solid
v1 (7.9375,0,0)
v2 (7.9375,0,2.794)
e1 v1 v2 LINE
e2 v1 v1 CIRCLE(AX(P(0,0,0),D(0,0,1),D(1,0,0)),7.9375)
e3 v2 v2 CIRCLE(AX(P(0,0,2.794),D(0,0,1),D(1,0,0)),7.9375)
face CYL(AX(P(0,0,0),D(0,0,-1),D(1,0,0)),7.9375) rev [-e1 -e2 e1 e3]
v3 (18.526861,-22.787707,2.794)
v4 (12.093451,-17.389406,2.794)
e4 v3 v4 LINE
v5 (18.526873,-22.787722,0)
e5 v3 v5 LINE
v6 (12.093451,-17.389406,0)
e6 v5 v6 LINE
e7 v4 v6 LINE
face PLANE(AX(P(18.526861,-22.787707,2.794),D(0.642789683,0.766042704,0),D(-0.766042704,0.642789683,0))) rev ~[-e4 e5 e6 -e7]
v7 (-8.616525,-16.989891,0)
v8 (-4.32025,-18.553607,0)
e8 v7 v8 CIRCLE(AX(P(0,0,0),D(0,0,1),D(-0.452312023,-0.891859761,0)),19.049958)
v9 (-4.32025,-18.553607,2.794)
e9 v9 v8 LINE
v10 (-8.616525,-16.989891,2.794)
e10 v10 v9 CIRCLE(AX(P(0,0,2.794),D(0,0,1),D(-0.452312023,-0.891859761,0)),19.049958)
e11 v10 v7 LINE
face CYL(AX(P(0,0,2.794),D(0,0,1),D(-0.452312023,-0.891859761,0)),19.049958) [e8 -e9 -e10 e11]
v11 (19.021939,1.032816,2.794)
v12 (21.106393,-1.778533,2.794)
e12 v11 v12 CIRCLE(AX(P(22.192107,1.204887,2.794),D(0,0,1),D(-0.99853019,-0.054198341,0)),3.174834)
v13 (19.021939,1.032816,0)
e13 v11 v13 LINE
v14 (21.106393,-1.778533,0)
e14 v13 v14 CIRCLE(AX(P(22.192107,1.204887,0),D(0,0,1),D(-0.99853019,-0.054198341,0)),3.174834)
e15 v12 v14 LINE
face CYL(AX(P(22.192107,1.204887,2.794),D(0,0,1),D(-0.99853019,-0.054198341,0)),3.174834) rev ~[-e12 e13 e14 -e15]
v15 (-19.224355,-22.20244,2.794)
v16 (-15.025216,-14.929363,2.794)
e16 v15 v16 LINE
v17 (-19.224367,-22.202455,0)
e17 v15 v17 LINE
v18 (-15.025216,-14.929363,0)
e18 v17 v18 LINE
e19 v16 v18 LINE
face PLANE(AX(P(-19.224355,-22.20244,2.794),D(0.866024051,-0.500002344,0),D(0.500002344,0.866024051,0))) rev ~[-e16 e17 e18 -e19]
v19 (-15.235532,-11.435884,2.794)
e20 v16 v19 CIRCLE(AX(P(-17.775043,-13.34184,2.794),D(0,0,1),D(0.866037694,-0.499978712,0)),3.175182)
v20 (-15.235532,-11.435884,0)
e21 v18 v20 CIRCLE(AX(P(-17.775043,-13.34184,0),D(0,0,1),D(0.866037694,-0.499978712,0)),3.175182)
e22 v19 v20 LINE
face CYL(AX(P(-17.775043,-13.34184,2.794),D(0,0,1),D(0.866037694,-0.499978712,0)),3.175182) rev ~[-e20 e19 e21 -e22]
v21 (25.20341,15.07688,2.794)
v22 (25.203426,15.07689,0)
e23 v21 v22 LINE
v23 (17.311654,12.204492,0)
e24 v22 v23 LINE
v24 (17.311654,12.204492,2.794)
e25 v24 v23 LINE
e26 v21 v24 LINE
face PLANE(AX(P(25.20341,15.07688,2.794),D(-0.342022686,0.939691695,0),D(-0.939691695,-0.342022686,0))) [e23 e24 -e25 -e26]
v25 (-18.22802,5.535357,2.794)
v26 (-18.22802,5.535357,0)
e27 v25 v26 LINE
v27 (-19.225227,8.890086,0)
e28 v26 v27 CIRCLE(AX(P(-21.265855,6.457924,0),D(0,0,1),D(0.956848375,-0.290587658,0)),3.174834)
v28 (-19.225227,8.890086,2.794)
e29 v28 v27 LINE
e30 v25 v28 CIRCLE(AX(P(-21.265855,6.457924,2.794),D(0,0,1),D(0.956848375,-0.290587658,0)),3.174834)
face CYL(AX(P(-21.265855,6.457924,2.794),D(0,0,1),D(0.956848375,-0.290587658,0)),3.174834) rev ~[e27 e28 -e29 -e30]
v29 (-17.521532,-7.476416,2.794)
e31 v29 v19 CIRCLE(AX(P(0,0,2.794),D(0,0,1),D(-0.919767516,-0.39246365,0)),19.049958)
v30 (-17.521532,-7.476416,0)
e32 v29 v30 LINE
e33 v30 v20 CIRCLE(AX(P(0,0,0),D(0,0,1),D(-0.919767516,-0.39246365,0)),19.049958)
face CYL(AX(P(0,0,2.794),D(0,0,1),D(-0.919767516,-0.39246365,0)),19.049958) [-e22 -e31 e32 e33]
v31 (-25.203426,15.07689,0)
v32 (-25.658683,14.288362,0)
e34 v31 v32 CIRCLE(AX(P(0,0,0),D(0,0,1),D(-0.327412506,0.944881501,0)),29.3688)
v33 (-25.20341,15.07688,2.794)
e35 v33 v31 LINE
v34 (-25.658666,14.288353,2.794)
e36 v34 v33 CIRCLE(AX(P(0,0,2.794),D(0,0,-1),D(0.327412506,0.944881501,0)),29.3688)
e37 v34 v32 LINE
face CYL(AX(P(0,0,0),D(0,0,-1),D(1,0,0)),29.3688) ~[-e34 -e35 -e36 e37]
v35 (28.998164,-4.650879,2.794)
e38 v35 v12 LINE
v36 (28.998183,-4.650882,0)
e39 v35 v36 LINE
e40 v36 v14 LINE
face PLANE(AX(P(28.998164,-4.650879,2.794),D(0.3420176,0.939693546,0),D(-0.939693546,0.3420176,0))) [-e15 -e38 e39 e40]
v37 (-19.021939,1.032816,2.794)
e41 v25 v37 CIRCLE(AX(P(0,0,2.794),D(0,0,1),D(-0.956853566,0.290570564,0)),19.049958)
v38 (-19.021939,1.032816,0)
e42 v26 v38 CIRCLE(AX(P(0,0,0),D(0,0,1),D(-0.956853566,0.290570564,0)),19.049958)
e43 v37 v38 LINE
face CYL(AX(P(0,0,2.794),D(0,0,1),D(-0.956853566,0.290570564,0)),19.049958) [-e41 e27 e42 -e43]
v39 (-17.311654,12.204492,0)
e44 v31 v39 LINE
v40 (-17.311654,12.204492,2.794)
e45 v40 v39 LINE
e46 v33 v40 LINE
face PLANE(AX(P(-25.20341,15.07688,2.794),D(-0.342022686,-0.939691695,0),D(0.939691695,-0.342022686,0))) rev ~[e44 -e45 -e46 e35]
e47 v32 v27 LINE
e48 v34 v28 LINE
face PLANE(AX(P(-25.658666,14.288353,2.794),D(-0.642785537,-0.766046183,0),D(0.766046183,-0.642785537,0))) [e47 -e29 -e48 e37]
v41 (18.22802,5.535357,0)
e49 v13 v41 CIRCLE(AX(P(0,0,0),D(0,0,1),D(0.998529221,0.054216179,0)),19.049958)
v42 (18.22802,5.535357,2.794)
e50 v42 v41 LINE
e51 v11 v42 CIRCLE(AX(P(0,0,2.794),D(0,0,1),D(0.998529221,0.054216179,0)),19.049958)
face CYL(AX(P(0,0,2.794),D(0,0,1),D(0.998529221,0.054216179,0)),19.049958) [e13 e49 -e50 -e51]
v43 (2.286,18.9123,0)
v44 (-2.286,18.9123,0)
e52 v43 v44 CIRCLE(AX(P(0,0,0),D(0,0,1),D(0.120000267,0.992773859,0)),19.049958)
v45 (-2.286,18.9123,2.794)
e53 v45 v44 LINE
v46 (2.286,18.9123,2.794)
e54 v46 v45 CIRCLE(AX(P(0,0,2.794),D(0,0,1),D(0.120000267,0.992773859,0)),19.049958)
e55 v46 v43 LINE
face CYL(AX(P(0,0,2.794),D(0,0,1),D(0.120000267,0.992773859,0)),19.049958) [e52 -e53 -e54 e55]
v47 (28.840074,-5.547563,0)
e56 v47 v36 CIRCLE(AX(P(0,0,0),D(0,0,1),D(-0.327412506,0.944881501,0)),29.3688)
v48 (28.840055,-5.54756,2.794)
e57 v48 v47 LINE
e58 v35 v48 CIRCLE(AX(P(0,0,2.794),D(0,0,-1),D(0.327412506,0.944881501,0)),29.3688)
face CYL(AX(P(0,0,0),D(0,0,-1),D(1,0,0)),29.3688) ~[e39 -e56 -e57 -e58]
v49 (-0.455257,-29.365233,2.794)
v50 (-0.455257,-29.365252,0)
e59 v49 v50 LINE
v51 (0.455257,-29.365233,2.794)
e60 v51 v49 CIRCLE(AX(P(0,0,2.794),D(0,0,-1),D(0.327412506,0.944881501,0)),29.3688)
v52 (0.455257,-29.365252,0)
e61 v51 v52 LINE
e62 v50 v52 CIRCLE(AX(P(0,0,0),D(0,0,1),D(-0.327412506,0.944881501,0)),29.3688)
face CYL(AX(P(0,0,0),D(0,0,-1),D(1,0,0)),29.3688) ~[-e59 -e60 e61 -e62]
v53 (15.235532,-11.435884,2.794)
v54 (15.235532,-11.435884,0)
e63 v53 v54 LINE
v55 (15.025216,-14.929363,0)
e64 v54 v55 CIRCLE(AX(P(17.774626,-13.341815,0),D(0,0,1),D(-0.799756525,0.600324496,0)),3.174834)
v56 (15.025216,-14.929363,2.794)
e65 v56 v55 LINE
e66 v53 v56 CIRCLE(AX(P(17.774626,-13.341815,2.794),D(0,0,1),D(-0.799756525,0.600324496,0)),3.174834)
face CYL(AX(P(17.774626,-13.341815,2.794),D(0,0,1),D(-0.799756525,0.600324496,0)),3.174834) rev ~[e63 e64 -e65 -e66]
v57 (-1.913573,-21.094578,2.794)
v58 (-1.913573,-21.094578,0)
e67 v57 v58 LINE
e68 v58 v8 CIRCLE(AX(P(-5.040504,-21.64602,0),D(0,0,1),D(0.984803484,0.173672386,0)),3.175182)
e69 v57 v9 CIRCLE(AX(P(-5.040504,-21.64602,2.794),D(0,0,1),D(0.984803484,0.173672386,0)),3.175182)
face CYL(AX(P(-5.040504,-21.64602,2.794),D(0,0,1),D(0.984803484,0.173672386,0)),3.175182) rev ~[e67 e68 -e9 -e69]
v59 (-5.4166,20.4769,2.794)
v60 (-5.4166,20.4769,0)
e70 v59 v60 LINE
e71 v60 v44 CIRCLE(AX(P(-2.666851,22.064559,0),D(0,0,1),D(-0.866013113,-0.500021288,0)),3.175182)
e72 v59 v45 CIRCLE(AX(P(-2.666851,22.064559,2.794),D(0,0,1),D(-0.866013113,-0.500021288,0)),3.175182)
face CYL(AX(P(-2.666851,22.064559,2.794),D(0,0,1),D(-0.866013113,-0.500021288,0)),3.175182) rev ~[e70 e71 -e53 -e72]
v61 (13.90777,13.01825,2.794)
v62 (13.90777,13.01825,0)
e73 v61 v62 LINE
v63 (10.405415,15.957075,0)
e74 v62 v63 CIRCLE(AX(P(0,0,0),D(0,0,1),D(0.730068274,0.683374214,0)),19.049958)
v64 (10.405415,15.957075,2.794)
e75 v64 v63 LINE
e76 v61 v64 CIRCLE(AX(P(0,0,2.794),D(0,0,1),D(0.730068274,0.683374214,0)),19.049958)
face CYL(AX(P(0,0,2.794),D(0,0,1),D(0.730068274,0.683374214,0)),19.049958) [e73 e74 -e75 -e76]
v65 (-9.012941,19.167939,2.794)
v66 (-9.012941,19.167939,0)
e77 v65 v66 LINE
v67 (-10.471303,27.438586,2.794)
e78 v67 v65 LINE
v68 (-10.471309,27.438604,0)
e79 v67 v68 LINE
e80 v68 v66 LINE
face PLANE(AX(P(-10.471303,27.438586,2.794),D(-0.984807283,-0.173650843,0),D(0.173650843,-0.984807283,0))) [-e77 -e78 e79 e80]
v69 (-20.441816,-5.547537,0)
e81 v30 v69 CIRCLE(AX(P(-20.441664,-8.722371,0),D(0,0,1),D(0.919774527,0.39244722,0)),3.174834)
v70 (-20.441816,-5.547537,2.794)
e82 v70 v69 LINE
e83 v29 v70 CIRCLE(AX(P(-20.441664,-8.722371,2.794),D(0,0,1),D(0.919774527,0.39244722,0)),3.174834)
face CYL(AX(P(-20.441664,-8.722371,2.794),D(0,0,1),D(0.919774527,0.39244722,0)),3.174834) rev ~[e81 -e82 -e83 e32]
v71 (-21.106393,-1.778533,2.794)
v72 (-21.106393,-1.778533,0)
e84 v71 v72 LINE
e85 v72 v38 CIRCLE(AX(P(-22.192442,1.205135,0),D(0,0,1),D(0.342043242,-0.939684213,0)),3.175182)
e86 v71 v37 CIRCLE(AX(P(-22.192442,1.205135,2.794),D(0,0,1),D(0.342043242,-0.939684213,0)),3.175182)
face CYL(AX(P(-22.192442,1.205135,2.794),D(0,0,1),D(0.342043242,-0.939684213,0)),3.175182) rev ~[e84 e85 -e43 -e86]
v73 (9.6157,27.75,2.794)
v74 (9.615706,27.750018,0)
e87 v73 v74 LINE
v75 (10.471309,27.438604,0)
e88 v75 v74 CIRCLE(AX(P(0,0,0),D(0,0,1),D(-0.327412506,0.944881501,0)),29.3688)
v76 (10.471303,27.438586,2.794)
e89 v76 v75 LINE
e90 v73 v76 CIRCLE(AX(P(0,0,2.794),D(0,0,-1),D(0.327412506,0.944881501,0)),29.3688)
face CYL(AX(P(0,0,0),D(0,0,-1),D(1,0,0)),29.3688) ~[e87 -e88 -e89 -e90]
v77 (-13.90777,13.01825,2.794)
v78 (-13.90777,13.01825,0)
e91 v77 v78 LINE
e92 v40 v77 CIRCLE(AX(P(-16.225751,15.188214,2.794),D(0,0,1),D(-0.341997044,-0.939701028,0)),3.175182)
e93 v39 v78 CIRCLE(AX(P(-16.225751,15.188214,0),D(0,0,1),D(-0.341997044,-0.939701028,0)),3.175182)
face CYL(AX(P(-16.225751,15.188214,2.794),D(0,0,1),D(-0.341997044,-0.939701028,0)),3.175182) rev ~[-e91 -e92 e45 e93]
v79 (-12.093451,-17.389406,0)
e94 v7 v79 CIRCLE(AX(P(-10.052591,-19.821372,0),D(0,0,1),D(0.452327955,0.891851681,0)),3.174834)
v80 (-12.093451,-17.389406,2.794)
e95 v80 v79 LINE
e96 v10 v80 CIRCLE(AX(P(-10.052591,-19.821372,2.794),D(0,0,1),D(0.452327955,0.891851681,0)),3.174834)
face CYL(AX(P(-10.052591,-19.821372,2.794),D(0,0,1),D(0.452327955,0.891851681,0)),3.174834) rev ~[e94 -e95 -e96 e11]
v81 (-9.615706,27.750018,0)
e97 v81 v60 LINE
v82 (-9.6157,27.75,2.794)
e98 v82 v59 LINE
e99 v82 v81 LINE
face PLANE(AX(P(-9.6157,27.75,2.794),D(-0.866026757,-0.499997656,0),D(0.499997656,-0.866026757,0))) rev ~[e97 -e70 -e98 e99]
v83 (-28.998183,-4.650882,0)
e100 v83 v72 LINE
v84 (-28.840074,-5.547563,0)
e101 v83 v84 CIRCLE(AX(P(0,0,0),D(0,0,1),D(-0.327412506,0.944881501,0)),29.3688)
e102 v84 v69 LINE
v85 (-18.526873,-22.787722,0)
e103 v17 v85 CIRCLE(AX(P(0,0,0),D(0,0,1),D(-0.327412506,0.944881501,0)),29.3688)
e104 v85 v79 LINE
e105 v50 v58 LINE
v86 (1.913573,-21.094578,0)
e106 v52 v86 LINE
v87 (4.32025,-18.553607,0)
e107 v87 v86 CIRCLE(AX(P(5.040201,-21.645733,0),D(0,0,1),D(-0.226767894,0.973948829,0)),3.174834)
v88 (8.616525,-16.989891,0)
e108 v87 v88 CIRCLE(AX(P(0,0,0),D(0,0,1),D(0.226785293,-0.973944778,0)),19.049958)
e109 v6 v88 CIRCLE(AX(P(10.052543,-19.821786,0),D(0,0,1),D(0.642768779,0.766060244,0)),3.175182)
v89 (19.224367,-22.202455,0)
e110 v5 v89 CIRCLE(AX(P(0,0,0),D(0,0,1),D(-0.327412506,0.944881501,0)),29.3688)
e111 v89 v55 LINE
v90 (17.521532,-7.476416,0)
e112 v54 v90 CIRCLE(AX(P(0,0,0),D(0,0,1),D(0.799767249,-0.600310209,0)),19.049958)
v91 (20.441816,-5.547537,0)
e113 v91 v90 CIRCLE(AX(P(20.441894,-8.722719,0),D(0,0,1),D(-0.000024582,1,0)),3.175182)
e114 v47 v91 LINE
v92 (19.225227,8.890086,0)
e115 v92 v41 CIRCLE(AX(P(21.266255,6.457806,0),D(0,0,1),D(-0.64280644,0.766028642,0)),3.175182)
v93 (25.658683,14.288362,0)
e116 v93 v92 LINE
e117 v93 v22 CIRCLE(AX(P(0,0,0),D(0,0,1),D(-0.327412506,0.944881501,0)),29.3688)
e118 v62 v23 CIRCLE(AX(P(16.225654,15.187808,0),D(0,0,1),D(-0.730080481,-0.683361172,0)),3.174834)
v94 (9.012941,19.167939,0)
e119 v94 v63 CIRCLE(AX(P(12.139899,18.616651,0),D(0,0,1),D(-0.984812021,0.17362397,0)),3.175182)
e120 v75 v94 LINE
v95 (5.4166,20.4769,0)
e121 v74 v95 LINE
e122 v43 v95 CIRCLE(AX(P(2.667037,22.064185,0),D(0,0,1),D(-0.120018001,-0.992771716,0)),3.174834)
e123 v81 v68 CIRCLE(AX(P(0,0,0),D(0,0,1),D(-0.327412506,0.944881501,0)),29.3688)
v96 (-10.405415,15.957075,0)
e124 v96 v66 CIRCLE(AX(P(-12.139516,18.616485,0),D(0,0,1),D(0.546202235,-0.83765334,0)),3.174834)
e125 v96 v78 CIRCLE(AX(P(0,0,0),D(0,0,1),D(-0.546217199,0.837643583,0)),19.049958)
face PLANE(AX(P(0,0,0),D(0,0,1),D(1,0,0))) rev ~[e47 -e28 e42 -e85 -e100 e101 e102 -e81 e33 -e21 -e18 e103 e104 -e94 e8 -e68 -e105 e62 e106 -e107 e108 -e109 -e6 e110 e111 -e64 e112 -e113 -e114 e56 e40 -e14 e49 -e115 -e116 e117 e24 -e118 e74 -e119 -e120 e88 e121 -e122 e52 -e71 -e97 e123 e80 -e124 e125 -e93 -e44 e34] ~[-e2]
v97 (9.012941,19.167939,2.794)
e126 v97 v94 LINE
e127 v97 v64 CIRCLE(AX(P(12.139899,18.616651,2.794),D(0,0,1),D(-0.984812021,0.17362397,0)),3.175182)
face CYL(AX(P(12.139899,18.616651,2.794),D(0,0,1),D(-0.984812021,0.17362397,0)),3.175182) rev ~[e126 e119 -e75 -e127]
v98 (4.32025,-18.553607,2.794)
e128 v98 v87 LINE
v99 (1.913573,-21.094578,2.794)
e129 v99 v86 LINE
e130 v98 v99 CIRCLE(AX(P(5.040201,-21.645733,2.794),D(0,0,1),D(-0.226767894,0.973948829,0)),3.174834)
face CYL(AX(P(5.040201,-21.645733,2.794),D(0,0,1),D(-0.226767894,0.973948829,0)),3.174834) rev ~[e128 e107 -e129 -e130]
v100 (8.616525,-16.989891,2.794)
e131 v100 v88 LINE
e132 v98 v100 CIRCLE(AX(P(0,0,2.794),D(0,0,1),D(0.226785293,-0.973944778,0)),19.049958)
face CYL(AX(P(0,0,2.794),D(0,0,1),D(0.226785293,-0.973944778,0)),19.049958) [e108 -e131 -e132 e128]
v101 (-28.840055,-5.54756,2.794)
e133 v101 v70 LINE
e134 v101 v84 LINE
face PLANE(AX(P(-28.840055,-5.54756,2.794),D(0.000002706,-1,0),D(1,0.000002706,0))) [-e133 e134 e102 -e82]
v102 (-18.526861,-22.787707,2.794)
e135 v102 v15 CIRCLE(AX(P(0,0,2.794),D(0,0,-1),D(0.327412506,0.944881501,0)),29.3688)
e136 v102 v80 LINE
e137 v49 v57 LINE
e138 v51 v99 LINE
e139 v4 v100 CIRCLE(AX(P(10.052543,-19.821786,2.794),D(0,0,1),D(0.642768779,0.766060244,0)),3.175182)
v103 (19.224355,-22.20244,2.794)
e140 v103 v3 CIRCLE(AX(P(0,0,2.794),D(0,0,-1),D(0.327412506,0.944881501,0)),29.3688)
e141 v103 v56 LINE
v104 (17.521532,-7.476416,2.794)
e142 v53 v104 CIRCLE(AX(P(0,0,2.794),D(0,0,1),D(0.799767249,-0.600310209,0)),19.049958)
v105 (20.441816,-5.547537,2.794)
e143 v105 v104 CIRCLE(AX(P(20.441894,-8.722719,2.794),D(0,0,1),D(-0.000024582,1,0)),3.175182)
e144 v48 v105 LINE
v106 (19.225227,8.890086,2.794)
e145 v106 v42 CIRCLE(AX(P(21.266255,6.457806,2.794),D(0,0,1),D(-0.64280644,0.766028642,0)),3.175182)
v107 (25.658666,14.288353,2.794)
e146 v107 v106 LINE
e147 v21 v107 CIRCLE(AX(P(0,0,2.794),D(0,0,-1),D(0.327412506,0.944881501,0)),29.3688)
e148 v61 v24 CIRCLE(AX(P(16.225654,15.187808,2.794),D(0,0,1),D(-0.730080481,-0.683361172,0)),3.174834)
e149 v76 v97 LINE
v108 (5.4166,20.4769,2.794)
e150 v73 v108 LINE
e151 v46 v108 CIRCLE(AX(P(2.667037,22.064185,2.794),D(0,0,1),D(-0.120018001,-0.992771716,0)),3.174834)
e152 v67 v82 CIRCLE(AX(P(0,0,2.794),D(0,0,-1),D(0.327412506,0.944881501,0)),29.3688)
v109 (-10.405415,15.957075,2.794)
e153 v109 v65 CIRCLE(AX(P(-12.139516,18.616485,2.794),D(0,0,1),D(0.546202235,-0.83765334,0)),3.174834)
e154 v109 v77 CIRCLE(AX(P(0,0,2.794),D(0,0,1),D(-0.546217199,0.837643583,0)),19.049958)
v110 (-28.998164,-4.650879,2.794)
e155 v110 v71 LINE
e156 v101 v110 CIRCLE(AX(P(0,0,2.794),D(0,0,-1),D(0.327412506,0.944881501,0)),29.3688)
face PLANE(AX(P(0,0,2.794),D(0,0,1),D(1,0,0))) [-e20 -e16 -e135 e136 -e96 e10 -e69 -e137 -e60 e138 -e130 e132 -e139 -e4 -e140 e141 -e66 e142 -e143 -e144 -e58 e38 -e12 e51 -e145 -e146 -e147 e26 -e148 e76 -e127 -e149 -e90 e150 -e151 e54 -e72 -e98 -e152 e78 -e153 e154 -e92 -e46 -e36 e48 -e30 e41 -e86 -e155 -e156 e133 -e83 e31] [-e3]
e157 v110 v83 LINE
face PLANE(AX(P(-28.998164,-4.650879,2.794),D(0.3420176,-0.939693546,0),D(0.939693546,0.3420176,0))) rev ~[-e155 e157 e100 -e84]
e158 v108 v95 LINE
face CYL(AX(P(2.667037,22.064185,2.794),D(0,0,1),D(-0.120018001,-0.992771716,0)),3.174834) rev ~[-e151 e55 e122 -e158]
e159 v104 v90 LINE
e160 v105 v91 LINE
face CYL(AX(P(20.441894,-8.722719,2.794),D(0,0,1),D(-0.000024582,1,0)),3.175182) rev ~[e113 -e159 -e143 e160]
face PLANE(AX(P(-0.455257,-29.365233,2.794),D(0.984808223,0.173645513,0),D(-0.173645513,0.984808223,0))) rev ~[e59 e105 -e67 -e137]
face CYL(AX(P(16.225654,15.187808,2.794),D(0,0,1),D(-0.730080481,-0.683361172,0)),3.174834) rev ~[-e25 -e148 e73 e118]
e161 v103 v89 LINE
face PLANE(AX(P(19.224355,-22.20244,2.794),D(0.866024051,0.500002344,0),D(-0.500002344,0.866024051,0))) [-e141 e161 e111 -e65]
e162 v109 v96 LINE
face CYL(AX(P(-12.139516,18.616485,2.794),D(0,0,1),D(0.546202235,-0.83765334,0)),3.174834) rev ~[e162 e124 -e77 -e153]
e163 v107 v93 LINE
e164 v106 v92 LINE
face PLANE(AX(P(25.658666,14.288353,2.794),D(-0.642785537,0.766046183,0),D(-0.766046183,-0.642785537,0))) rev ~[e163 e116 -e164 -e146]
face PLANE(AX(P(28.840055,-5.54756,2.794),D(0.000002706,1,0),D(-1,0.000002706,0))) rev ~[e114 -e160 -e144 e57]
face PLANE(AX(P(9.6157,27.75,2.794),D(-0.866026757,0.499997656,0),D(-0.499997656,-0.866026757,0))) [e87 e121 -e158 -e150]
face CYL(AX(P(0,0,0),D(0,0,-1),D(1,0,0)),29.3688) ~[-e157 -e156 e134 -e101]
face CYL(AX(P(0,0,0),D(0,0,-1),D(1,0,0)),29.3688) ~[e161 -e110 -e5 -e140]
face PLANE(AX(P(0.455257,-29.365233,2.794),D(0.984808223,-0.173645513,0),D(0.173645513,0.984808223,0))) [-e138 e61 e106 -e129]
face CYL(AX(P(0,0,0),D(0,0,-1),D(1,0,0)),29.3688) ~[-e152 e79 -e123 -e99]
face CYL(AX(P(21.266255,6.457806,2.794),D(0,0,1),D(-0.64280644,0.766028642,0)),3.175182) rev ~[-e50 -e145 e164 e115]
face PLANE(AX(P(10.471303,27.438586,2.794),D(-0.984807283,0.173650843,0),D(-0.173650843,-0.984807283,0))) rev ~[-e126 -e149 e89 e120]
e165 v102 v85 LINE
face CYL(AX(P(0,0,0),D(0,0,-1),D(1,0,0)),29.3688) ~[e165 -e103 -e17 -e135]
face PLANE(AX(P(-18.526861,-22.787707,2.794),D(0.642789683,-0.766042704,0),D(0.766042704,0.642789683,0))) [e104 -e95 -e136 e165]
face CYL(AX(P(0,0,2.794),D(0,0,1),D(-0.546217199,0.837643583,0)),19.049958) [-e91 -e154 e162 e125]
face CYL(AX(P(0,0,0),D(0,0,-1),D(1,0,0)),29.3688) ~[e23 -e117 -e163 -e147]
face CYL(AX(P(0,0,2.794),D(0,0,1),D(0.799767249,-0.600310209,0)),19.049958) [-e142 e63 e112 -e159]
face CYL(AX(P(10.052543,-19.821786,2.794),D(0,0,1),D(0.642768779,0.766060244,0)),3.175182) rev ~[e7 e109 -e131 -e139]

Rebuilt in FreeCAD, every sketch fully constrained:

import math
import FreeCAD as App
import Part
import Sketcher

V = App.Vector
Q = App.Units.Quantity

doc = App.newDocument("Part")
body = doc.addObject("PartDesign::Body", "Body")

sketch1 = body.newObject("Sketcher::SketchObject", "Sketch")
sketch1.AttachmentSupport = (doc.getObject("XY_Plane"), [""])
sketch1.MapMode = "FlatFace"
sketch1.addGeometry(Part.Circle(V(0, 0, 0), V(0, 0, 1), 29), False)
sketch1.addGeometry(Part.Circle(V(0, 0, 0), V(0, 0, 1), 8), False)
sketch1.addConstraint(Sketcher.Constraint("Coincident", 0, 3, -1, 1))
sketch1.addConstraint(Sketcher.Constraint("Coincident", 1, 3, -1, 1))
sketch1.addConstraint(Sketcher.Constraint("Diameter", 0, Q("2.3125 in")))
sketch1.addConstraint(Sketcher.Constraint("Diameter", 1, Q("0.625 in")))
pad1 = body.newObject("PartDesign::Pad", "Pad")
pad1.Profile = sketch1
pad1.Length = Q("0.11 in")

sketch2 = body.newObject("Sketcher::SketchObject", "Sketch001")
sketch2.AttachmentSupport = (doc.getObject("XY_Plane"), [""])
sketch2.MapMode = "FlatFace"
sketch2.AttachmentOffset = App.Placement(V(0, 0, 0.11 * 25.4), App.Rotation())
sketch2.addGeometry(Part.ArcOfCircle(Part.Circle(V(0, 0, 0), V(0, 0, 1), 29.4), math.radians(71), math.radians(109)), False)
sketch2.addGeometry(Part.LineSegment(V(-9.6, 27.8, 0), V(-5.4, 20.5, 0)), False)
sketch2.addGeometry(Part.ArcOfCircle(Part.Circle(V(-2.7, 22.1, 0), V(0, 0, 1), 3.2), math.radians(-150), math.radians(-83)), False)
sketch2.addGeometry(Part.ArcOfCircle(Part.Circle(V(0, 0, 0), V(0, 0, 1), 19), math.radians(83.11), math.radians(96.89)), False)
sketch2.addGeometry(Part.ArcOfCircle(Part.Circle(V(2.7, 22.1, 0), V(0, 0, 1), 3.2), math.radians(-97), math.radians(-30)), False)
sketch2.addGeometry(Part.LineSegment(V(5.4, 20.5, 0), V(9.6, 27.8, 0)), False)
sketch2.addConstraint(Sketcher.Constraint("Coincident", 0, 2, 1, 1))
sketch2.addConstraint(Sketcher.Constraint("Tangent", 1, 2, 2, 1))
sketch2.addConstraint(Sketcher.Constraint("Tangent", 2, 2, 3, 2))
sketch2.addConstraint(Sketcher.Constraint("Tangent", 3, 1, 4, 1))
sketch2.addConstraint(Sketcher.Constraint("Tangent", 4, 2, 5, 1))
sketch2.addConstraint(Sketcher.Constraint("Coincident", 5, 2, 0, 1))
sketch2.addConstraint(Sketcher.Constraint("Coincident", 0, 3, -1, 1))
sketch2.addConstraint(Sketcher.Constraint("Coincident", 3, 3, -1, 1))
sketch2.addConstraint(Sketcher.Constraint("Equal", 2, 4))
sketch2.addConstraint(Sketcher.Constraint("Symmetric", 1, 2, 4, 2, -2))
sketch2.addConstraint(Sketcher.Constraint("Radius", 3, Q("0.75 in")))
sketch2.addConstraint(Sketcher.Constraint("Angle", 1, Q("-60.0002 deg")))
sketch2.addConstraint(Sketcher.Constraint("Radius", 2, Q("0.125 in")))
sketch2.addConstraint(Sketcher.Constraint("DistanceX", 2, 3, 4, 3, Q("0.21 in")))
sketch2.addConstraint(Sketcher.Constraint("Radius", 0, Q("1.156248 in")))
pocket1 = body.newObject("PartDesign::Pocket", "Pocket")
pocket1.Profile = sketch2
pocket1.Type = "ThroughAll"
doc.recompute()

polarpattern = body.newObject("PartDesign::PolarPattern", "PolarPattern")
polarpattern.Originals = [pocket1]
polarpattern.Axis = (doc.getObject("Z_Axis"), [""])
polarpattern.Angle = 360
polarpattern.Occurrences = 9
body.Tip = polarpattern

doc.recompute()
